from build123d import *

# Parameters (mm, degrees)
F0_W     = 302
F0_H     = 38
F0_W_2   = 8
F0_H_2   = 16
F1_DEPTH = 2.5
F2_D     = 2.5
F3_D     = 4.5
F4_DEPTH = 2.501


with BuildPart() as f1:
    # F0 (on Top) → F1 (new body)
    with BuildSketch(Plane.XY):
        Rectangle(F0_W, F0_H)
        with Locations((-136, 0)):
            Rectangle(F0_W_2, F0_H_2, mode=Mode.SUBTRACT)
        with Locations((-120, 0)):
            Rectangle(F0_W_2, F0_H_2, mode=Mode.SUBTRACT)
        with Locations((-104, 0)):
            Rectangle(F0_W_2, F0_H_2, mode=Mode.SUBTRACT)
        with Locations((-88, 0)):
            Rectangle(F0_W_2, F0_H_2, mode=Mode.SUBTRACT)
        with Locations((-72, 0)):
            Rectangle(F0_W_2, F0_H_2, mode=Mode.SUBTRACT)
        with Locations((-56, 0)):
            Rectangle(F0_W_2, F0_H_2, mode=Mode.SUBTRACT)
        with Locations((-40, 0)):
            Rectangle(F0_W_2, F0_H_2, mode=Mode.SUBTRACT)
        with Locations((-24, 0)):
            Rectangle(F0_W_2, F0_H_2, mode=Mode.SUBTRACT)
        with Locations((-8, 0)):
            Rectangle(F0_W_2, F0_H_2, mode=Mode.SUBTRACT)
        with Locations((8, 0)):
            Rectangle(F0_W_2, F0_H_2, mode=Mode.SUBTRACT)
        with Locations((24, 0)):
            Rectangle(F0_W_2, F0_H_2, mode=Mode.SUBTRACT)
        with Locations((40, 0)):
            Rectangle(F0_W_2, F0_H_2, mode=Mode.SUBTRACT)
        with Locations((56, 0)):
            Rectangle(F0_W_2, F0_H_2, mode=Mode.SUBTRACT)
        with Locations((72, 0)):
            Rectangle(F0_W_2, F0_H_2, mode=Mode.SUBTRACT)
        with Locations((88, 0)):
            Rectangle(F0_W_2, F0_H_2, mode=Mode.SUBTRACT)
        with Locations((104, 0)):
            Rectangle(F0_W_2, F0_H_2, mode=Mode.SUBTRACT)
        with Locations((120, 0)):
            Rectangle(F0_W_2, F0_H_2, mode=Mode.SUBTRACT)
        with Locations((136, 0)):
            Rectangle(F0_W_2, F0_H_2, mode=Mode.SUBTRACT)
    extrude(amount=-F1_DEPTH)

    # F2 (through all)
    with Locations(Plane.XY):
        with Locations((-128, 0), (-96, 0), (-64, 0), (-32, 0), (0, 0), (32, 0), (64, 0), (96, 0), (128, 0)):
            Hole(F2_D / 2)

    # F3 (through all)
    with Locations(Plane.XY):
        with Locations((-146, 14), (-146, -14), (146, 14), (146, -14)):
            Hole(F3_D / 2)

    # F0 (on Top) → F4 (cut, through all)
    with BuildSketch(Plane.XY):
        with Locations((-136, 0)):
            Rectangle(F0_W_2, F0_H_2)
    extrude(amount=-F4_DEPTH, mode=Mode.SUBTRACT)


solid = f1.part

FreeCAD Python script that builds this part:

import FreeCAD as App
import Part
import Sketcher
from FreeCAD import Vector
Q = App.Units.Quantity


def add_polygon(sketch, points):
    """Adds a closed chain of lines whose ends are joined by coincident constraints."""
    first, n = sketch.GeometryCount, len(points)
    for a, b in zip(points, points[1:] + points[:1]):
        sketch.addGeometry(Part.LineSegment(App.Vector(*a, 0), App.Vector(*b, 0)), False)
    for i in range(n):
        sketch.addConstraint(Sketcher.Constraint("Coincident", first + i, 2, first + (i + 1) % n, 1))

doc = App.newDocument("Part")
body = doc.addObject("PartDesign::Body", "Body")

# Sketch on XY plane
sketch1 = body.newObject("Sketcher::SketchObject", "Sketch")
sketch1.AttachmentSupport = (doc.getObject("XY_Plane"), [""])
sketch1.MapMode = "FlatFace"
add_polygon(sketch1, [(-151, 19), (-151, -19), (151, -19), (151, 19)])  # lines 0-3
add_polygon(sketch1, [(-132, -8), (-140, -8), (-140, 8), (-132, 8)])  # lines 4-7
add_polygon(sketch1, [(-116, -8), (-124, -8), (-124, 8), (-116, 8)])  # lines 8-11
add_polygon(sketch1, [(-100, -8), (-108, -8), (-108, 8), (-100, 8)])  # lines 12-15
add_polygon(sketch1, [(-84, -8), (-92, -8), (-92, 8), (-84, 8)])  # lines 16-19
add_polygon(sketch1, [(-68, -8), (-76, -8), (-76, 8), (-68, 8)])  # lines 20-23
add_polygon(sketch1, [(-52, -8), (-60, -8), (-60, 8), (-52, 8)])  # lines 24-27
add_polygon(sketch1, [(-36, -8), (-44, -8), (-44, 8), (-36, 8)])  # lines 28-31
add_polygon(sketch1, [(-20, -8), (-28, -8), (-28, 8), (-20, 8)])  # lines 32-35
add_polygon(sketch1, [(-4, -8), (-12, -8), (-12, 8), (-4, 8)])  # lines 36-39
add_polygon(sketch1, [(12, -8), (4, -8), (4, 8), (12, 8)])  # lines 40-43
add_polygon(sketch1, [(28, -8), (20, -8), (20, 8), (28, 8)])  # lines 44-47
add_polygon(sketch1, [(44, -8), (36, -8), (36, 8), (44, 8)])  # lines 48-51
add_polygon(sketch1, [(60, -8), (52, -8), (52, 8), (60, 8)])  # lines 52-55
add_polygon(sketch1, [(76, -8), (68, -8), (68, 8), (76, 8)])  # lines 56-59
add_polygon(sketch1, [(92, -8), (84, -8), (84, 8), (92, 8)])  # lines 60-63
add_polygon(sketch1, [(108, -8), (100, -8), (100, 8), (108, 8)])  # lines 64-67
add_polygon(sketch1, [(124, -8), (116, -8), (116, 8), (124, 8)])  # lines 68-71
add_polygon(sketch1, [(140, -8), (132, -8), (132, 8), (140, 8)])  # lines 72-75
sketch1.addConstraint([
    Sketcher.Constraint("Vertical", 0),
    Sketcher.Constraint("Horizontal", 1),
    Sketcher.Constraint("Vertical", 2),
    Sketcher.Constraint("Horizontal", 3),
    Sketcher.Constraint("Horizontal", 4),
    Sketcher.Constraint("Vertical", 5),
    Sketcher.Constraint("Horizontal", 6),
    Sketcher.Constraint("Vertical", 7),
    Sketcher.Constraint("Horizontal", 8),
    Sketcher.Constraint("Vertical", 9),
    Sketcher.Constraint("Horizontal", 10),
    Sketcher.Constraint("Vertical", 11),
    Sketcher.Constraint("Horizontal", 12),
    Sketcher.Constraint("Vertical", 13),
    Sketcher.Constraint("Horizontal", 14),
    Sketcher.Constraint("Vertical", 15),
    Sketcher.Constraint("Horizontal", 16),
    Sketcher.Constraint("Vertical", 17),
    Sketcher.Constraint("Horizontal", 18),
    Sketcher.Constraint("Vertical", 19),
    Sketcher.Constraint("Horizontal", 20),
    Sketcher.Constraint("Vertical", 21),
    Sketcher.Constraint("Horizontal", 22),
    Sketcher.Constraint("Vertical", 23),
    Sketcher.Constraint("Horizontal", 24),
    Sketcher.Constraint("Vertical", 25),
    Sketcher.Constraint("Horizontal", 26),
    Sketcher.Constraint("Vertical", 27),
    Sketcher.Constraint("Horizontal", 28),
    Sketcher.Constraint("Vertical", 29),
    Sketcher.Constraint("Horizontal", 30),
    Sketcher.Constraint("Vertical", 31),
    Sketcher.Constraint("Horizontal", 32),
    Sketcher.Constraint("Vertical", 33),
    Sketcher.Constraint("Horizontal", 34),
    Sketcher.Constraint("Vertical", 35),
    Sketcher.Constraint("Horizontal", 36),
    Sketcher.Constraint("Vertical", 37),
    Sketcher.Constraint("Horizontal", 38),
    Sketcher.Constraint("Vertical", 39),
    Sketcher.Constraint("Horizontal", 40),
    Sketcher.Constraint("Vertical", 41),
    Sketcher.Constraint("Horizontal", 42),
    Sketcher.Constraint("Vertical", 43),
    Sketcher.Constraint("Horizontal", 44),
    Sketcher.Constraint("Vertical", 45),
    Sketcher.Constraint("Horizontal", 46),
    Sketcher.Constraint("Vertical", 47),
    Sketcher.Constraint("Horizontal", 48),
    Sketcher.Constraint("Vertical", 49),
    Sketcher.Constraint("Horizontal", 50),
    Sketcher.Constraint("Vertical", 51),
    Sketcher.Constraint("Horizontal", 52),
    Sketcher.Constraint("Vertical", 53),
    Sketcher.Constraint("Horizontal", 54),
    Sketcher.Constraint("Vertical", 55),
    Sketcher.Constraint("Horizontal", 56),
    Sketcher.Constraint("Vertical", 57),
    Sketcher.Constraint("Horizontal", 58),
    Sketcher.Constraint("Vertical", 59),
    Sketcher.Constraint("Horizontal", 60),
    Sketcher.Constraint("Vertical", 61),
    Sketcher.Constraint("Horizontal", 62),
    Sketcher.Constraint("Vertical", 63),
    Sketcher.Constraint("Horizontal", 64),
    Sketcher.Constraint("Vertical", 65),
    Sketcher.Constraint("Horizontal", 66),
    Sketcher.Constraint("Vertical", 67),
    Sketcher.Constraint("Horizontal", 68),
    Sketcher.Constraint("Vertical", 69),
    Sketcher.Constraint("Horizontal", 70),
    Sketcher.Constraint("Vertical", 71),
    Sketcher.Constraint("Horizontal", 72),
    Sketcher.Constraint("Vertical", 73),
    Sketcher.Constraint("Horizontal", 74),
    Sketcher.Constraint("Vertical", 75),
    Sketcher.Constraint("Symmetric", 0, 2, 2, 2, -1, 1),
    Sketcher.Constraint("Symmetric", 38, 2, 40, 2, -1, 1),
    Sketcher.Constraint("Symmetric", 36, 2, 42, 2, -1, 1),
    Sketcher.Constraint("Symmetric", 34, 2, 44, 2, -1, 1),
    Sketcher.Constraint("Symmetric", 32, 2, 46, 2, -1, 1),
    Sketcher.Constraint("Symmetric", 30, 2, 48, 2, -1, 1),
    Sketcher.Constraint("Symmetric", 28, 2, 50, 2, -1, 1),
    Sketcher.Constraint("Symmetric", 26, 2, 52, 2, -1, 1),
    Sketcher.Constraint("Symmetric", 24, 2, 54, 2, -1, 1),
    Sketcher.Constraint("Symmetric", 22, 2, 56, 2, -1, 1),
    Sketcher.Constraint("Symmetric", 20, 2, 58, 2, -1, 1),
    Sketcher.Constraint("Symmetric", 18, 2, 60, 2, -1, 1),
    Sketcher.Constraint("Symmetric", 16, 2, 62, 2, -1, 1),
    Sketcher.Constraint("Symmetric", 14, 2, 64, 2, -1, 1),
    Sketcher.Constraint("Symmetric", 12, 2, 66, 2, -1, 1),
    Sketcher.Constraint("Symmetric", 10, 2, 68, 2, -1, 1),
    Sketcher.Constraint("Symmetric", 8, 2, 70, 2, -1, 1),
    Sketcher.Constraint("Symmetric", 6, 2, 72, 2, -1, 1),
    Sketcher.Constraint("Symmetric", 4, 2, 74, 2, -1, 1),
    Sketcher.Constraint("Horizontal", 7, 2, 8, 2),
    Sketcher.Constraint("Horizontal", 6, 2, 9, 2),
    Sketcher.Constraint("Horizontal", 11, 2, 12, 2),
    Sketcher.Constraint("Horizontal", 10, 2, 13, 2),
    Sketcher.Constraint("Horizontal", 15, 2, 16, 2),
    Sketcher.Constraint("Horizontal", 14, 2, 17, 2),
    Sketcher.Constraint("Horizontal", 19, 2, 20, 2),
    Sketcher.Constraint("Horizontal", 18, 2, 21, 2),
    Sketcher.Constraint("Horizontal", 23, 2, 24, 2),
    Sketcher.Constraint("Horizontal", 22, 2, 25, 2),
    Sketcher.Constraint("Horizontal", 27, 2, 28, 2),
    Sketcher.Constraint("Horizontal", 26, 2, 29, 2),
    Sketcher.Constraint("Horizontal", 31, 2, 32, 2),
    Sketcher.Constraint("Horizontal", 30, 2, 33, 2),
    Sketcher.Constraint("Horizontal", 35, 2, 36, 2),
    Sketcher.Constraint("Horizontal", 34, 2, 37, 2),
    Sketcher.Constraint("Horizontal", 39, 2, 40, 2),
    Sketcher.Constraint("Equal", 6, 8),
    Sketcher.Constraint("Equal", 10, 12),
    Sketcher.Constraint("Equal", 14, 16),
    Sketcher.Constraint("Equal", 18, 20),
    Sketcher.Constraint("Equal", 22, 24),
    Sketcher.Constraint("Equal", 26, 28),
    Sketcher.Constraint("Equal", 30, 32),
    Sketcher.Constraint("Equal", 34, 36),
    Sketcher.Constraint("DistanceX", 1, 1, 1, 2, Q("302 mm")),
    Sketcher.Constraint("DistanceX", 4, 2, 4, 1, Q("8 mm")),
    Sketcher.Constraint("DistanceY", 0, 2, 0, 1, Q("38 mm")),
    Sketcher.Constraint("DistanceY", 5, 1, 5, 2, Q("16 mm")),
    Sketcher.Constraint("DistanceX", 4, 2, -1, 1, Q("140 mm")),
    Sketcher.Constraint("DistanceX", 8, 2, -1, 1, Q("124 mm")),
    Sketcher.Constraint("DistanceX", 12, 2, -1, 1, Q("108 mm")),
    Sketcher.Constraint("DistanceX", 16, 2, -1, 1, Q("92 mm")),
    Sketcher.Constraint("DistanceX", 20, 2, -1, 1, Q("76 mm")),
    Sketcher.Constraint("DistanceX", 24, 2, -1, 1, Q("60 mm")),
    Sketcher.Constraint("DistanceX", 28, 2, -1, 1, Q("44 mm")),
    Sketcher.Constraint("DistanceX", 32, 2, -1, 1, Q("28 mm")),
    Sketcher.Constraint("DistanceX", 36, 2, -1, 1, Q("12 mm")),
])
pad1 = body.newObject("PartDesign::Pad", "Pad")
pad1.Profile = sketch1
pad1.Length = 2.5
pad1.Reversed = True

# Sketch on XY plane
sketch2 = body.newObject("Sketcher::SketchObject", "Sketch001")
sketch2.AttachmentSupport = (doc.getObject("XY_Plane"), [""])
sketch2.MapMode = "FlatFace"
sketch2.addGeometry([
    Part.Circle(Vector(-128, 0, 0), Vector(0, 0, 1), 1.25),  # 0
    Part.Circle(Vector(-96, 0, 0), Vector(0, 0, 1), 1.25),  # 1
    Part.Circle(Vector(-64, 0, 0), Vector(0, 0, 1), 1.25),  # 2
    Part.Circle(Vector(-32, 0, 0), Vector(0, 0, 1), 1.25),  # 3
    Part.Circle(Vector(0, 0, 0), Vector(0, 0, 1), 1.25),  # 4
    Part.Circle(Vector(32, 0, 0), Vector(0, 0, 1), 1.25),  # 5
    Part.Circle(Vector(64, 0, 0), Vector(0, 0, 1), 1.25),  # 6
    Part.Circle(Vector(96, 0, 0), Vector(0, 0, 1), 1.25),  # 7
    Part.Circle(Vector(128, 0, 0), Vector(0, 0, 1), 1.25),  # 8
], False)
sketch2.addConstraint([
    Sketcher.Constraint("Coincident", 4, 3, -1, 1),
    Sketcher.Constraint("Equal", 0, 1),
    Sketcher.Constraint("Equal", 1, 2),
    Sketcher.Constraint("Equal", 2, 3),
    Sketcher.Constraint("Equal", 3, 4),
    Sketcher.Constraint("Equal", 4, 5),
    Sketcher.Constraint("Equal", 5, 6),
    Sketcher.Constraint("Equal", 6, 7),
    Sketcher.Constraint("Equal", 7, 8),
    Sketcher.Constraint("Symmetric", 3, 3, 5, 3, -1, 1),
    Sketcher.Constraint("Symmetric", 2, 3, 6, 3, -1, 1),
    Sketcher.Constraint("Symmetric", 1, 3, 7, 3, -1, 1),
    Sketcher.Constraint("Symmetric", 0, 3, 8, 3, -1, 1),
    Sketcher.Constraint("PointOnObject", 0, 3, -1),
    Sketcher.Constraint("PointOnObject", 1, 3, -1),
    Sketcher.Constraint("PointOnObject", 2, 3, -1),
    Sketcher.Constraint("PointOnObject", 3, 3, -1),
    Sketcher.Constraint("Diameter", 0, Q("2.5 mm")),
    Sketcher.Constraint("DistanceX", 0, 3, -1, 1, Q("128 mm")),
    Sketcher.Constraint("DistanceX", 1, 3, -1, 1, Q("96 mm")),
    Sketcher.Constraint("DistanceX", 2, 3, -1, 1, Q("64 mm")),
    Sketcher.Constraint("DistanceX", 3, 3, -1, 1, Q("32 mm")),
])
doc.recompute()
hole = body.newObject("PartDesign::Hole", "Hole")
hole.Profile = sketch2
hole.ThreadType = "None"
hole.Diameter = 2.5
hole.DepthType = "ThroughAll"

# Sketch on XY plane
sketch3 = body.newObject("Sketcher::SketchObject", "Sketch002")
sketch3.AttachmentSupport = (doc.getObject("XY_Plane"), [""])
sketch3.MapMode = "FlatFace"
sketch3.addGeometry([
    Part.Circle(Vector(-146, 14, 0), Vector(0, 0, 1), 2.25),
    Part.Circle(Vector(-146, -14, 0), Vector(0, 0, 1), 2.25),
    Part.Circle(Vector(146, 14, 0), Vector(0, 0, 1), 2.25),
    Part.Circle(Vector(146, -14, 0), Vector(0, 0, 1), 2.25),
], False)
sketch3.addConstraint([
    Sketcher.Constraint("Equal", 0, 1),
    Sketcher.Constraint("Equal", 1, 2),
    Sketcher.Constraint("Equal", 2, 3),
    Sketcher.Constraint("Symmetric", 1, 3, 2, 3, -1, 1),
    Sketcher.Constraint("Symmetric", 0, 3, 3, 3, -1, 1),
    Sketcher.Constraint("Symmetric", 0, 3, 2, 3, -2),
    Sketcher.Constraint("Diameter", 0, Q("4.5 mm")),
    Sketcher.Constraint("DistanceX", 0, 3, -1, 1, Q("146 mm")),
    Sketcher.Constraint("DistanceY", -1, 1, 0, 3, Q("14 mm")),
])
doc.recompute()
hole2 = body.newObject("PartDesign::Hole", "Hole001")
hole2.Profile = sketch3
hole2.ThreadType = "None"
hole2.Diameter = 4.5
hole2.DepthType = "ThroughAll"

# Sketch on XY plane
sketch4 = body.newObject("Sketcher::SketchObject", "Sketch003")
sketch4.AttachmentSupport = (doc.getObject("XY_Plane"), [""])
sketch4.MapMode = "FlatFace"
add_polygon(sketch4, [(-140, 8), (-140, -8), (-132, -8), (-132, 8)])  # lines 0-3
sketch4.addConstraint([
    Sketcher.Constraint("Vertical", 0),
    Sketcher.Constraint("Horizontal", 1),
    Sketcher.Constraint("Vertical", 2),
    Sketcher.Constraint("Horizontal", 3),
    Sketcher.Constraint("DistanceX", 1, 1, 1, 2, Q("8 mm")),
    Sketcher.Constraint("DistanceY", 0, 2, 0, 1, Q("16 mm")),
    Sketcher.Constraint("DistanceX", 0, 2, -1, 1, Q("140 mm")),
    Sketcher.Constraint("DistanceY", 0, 2, -1, 1, Q("8 mm")),
])
pocket1 = body.newObject("PartDesign::Pocket", "Pocket")
pocket1.Profile = sketch4
pocket1.Type = "ThroughAll"

doc.recompute()
